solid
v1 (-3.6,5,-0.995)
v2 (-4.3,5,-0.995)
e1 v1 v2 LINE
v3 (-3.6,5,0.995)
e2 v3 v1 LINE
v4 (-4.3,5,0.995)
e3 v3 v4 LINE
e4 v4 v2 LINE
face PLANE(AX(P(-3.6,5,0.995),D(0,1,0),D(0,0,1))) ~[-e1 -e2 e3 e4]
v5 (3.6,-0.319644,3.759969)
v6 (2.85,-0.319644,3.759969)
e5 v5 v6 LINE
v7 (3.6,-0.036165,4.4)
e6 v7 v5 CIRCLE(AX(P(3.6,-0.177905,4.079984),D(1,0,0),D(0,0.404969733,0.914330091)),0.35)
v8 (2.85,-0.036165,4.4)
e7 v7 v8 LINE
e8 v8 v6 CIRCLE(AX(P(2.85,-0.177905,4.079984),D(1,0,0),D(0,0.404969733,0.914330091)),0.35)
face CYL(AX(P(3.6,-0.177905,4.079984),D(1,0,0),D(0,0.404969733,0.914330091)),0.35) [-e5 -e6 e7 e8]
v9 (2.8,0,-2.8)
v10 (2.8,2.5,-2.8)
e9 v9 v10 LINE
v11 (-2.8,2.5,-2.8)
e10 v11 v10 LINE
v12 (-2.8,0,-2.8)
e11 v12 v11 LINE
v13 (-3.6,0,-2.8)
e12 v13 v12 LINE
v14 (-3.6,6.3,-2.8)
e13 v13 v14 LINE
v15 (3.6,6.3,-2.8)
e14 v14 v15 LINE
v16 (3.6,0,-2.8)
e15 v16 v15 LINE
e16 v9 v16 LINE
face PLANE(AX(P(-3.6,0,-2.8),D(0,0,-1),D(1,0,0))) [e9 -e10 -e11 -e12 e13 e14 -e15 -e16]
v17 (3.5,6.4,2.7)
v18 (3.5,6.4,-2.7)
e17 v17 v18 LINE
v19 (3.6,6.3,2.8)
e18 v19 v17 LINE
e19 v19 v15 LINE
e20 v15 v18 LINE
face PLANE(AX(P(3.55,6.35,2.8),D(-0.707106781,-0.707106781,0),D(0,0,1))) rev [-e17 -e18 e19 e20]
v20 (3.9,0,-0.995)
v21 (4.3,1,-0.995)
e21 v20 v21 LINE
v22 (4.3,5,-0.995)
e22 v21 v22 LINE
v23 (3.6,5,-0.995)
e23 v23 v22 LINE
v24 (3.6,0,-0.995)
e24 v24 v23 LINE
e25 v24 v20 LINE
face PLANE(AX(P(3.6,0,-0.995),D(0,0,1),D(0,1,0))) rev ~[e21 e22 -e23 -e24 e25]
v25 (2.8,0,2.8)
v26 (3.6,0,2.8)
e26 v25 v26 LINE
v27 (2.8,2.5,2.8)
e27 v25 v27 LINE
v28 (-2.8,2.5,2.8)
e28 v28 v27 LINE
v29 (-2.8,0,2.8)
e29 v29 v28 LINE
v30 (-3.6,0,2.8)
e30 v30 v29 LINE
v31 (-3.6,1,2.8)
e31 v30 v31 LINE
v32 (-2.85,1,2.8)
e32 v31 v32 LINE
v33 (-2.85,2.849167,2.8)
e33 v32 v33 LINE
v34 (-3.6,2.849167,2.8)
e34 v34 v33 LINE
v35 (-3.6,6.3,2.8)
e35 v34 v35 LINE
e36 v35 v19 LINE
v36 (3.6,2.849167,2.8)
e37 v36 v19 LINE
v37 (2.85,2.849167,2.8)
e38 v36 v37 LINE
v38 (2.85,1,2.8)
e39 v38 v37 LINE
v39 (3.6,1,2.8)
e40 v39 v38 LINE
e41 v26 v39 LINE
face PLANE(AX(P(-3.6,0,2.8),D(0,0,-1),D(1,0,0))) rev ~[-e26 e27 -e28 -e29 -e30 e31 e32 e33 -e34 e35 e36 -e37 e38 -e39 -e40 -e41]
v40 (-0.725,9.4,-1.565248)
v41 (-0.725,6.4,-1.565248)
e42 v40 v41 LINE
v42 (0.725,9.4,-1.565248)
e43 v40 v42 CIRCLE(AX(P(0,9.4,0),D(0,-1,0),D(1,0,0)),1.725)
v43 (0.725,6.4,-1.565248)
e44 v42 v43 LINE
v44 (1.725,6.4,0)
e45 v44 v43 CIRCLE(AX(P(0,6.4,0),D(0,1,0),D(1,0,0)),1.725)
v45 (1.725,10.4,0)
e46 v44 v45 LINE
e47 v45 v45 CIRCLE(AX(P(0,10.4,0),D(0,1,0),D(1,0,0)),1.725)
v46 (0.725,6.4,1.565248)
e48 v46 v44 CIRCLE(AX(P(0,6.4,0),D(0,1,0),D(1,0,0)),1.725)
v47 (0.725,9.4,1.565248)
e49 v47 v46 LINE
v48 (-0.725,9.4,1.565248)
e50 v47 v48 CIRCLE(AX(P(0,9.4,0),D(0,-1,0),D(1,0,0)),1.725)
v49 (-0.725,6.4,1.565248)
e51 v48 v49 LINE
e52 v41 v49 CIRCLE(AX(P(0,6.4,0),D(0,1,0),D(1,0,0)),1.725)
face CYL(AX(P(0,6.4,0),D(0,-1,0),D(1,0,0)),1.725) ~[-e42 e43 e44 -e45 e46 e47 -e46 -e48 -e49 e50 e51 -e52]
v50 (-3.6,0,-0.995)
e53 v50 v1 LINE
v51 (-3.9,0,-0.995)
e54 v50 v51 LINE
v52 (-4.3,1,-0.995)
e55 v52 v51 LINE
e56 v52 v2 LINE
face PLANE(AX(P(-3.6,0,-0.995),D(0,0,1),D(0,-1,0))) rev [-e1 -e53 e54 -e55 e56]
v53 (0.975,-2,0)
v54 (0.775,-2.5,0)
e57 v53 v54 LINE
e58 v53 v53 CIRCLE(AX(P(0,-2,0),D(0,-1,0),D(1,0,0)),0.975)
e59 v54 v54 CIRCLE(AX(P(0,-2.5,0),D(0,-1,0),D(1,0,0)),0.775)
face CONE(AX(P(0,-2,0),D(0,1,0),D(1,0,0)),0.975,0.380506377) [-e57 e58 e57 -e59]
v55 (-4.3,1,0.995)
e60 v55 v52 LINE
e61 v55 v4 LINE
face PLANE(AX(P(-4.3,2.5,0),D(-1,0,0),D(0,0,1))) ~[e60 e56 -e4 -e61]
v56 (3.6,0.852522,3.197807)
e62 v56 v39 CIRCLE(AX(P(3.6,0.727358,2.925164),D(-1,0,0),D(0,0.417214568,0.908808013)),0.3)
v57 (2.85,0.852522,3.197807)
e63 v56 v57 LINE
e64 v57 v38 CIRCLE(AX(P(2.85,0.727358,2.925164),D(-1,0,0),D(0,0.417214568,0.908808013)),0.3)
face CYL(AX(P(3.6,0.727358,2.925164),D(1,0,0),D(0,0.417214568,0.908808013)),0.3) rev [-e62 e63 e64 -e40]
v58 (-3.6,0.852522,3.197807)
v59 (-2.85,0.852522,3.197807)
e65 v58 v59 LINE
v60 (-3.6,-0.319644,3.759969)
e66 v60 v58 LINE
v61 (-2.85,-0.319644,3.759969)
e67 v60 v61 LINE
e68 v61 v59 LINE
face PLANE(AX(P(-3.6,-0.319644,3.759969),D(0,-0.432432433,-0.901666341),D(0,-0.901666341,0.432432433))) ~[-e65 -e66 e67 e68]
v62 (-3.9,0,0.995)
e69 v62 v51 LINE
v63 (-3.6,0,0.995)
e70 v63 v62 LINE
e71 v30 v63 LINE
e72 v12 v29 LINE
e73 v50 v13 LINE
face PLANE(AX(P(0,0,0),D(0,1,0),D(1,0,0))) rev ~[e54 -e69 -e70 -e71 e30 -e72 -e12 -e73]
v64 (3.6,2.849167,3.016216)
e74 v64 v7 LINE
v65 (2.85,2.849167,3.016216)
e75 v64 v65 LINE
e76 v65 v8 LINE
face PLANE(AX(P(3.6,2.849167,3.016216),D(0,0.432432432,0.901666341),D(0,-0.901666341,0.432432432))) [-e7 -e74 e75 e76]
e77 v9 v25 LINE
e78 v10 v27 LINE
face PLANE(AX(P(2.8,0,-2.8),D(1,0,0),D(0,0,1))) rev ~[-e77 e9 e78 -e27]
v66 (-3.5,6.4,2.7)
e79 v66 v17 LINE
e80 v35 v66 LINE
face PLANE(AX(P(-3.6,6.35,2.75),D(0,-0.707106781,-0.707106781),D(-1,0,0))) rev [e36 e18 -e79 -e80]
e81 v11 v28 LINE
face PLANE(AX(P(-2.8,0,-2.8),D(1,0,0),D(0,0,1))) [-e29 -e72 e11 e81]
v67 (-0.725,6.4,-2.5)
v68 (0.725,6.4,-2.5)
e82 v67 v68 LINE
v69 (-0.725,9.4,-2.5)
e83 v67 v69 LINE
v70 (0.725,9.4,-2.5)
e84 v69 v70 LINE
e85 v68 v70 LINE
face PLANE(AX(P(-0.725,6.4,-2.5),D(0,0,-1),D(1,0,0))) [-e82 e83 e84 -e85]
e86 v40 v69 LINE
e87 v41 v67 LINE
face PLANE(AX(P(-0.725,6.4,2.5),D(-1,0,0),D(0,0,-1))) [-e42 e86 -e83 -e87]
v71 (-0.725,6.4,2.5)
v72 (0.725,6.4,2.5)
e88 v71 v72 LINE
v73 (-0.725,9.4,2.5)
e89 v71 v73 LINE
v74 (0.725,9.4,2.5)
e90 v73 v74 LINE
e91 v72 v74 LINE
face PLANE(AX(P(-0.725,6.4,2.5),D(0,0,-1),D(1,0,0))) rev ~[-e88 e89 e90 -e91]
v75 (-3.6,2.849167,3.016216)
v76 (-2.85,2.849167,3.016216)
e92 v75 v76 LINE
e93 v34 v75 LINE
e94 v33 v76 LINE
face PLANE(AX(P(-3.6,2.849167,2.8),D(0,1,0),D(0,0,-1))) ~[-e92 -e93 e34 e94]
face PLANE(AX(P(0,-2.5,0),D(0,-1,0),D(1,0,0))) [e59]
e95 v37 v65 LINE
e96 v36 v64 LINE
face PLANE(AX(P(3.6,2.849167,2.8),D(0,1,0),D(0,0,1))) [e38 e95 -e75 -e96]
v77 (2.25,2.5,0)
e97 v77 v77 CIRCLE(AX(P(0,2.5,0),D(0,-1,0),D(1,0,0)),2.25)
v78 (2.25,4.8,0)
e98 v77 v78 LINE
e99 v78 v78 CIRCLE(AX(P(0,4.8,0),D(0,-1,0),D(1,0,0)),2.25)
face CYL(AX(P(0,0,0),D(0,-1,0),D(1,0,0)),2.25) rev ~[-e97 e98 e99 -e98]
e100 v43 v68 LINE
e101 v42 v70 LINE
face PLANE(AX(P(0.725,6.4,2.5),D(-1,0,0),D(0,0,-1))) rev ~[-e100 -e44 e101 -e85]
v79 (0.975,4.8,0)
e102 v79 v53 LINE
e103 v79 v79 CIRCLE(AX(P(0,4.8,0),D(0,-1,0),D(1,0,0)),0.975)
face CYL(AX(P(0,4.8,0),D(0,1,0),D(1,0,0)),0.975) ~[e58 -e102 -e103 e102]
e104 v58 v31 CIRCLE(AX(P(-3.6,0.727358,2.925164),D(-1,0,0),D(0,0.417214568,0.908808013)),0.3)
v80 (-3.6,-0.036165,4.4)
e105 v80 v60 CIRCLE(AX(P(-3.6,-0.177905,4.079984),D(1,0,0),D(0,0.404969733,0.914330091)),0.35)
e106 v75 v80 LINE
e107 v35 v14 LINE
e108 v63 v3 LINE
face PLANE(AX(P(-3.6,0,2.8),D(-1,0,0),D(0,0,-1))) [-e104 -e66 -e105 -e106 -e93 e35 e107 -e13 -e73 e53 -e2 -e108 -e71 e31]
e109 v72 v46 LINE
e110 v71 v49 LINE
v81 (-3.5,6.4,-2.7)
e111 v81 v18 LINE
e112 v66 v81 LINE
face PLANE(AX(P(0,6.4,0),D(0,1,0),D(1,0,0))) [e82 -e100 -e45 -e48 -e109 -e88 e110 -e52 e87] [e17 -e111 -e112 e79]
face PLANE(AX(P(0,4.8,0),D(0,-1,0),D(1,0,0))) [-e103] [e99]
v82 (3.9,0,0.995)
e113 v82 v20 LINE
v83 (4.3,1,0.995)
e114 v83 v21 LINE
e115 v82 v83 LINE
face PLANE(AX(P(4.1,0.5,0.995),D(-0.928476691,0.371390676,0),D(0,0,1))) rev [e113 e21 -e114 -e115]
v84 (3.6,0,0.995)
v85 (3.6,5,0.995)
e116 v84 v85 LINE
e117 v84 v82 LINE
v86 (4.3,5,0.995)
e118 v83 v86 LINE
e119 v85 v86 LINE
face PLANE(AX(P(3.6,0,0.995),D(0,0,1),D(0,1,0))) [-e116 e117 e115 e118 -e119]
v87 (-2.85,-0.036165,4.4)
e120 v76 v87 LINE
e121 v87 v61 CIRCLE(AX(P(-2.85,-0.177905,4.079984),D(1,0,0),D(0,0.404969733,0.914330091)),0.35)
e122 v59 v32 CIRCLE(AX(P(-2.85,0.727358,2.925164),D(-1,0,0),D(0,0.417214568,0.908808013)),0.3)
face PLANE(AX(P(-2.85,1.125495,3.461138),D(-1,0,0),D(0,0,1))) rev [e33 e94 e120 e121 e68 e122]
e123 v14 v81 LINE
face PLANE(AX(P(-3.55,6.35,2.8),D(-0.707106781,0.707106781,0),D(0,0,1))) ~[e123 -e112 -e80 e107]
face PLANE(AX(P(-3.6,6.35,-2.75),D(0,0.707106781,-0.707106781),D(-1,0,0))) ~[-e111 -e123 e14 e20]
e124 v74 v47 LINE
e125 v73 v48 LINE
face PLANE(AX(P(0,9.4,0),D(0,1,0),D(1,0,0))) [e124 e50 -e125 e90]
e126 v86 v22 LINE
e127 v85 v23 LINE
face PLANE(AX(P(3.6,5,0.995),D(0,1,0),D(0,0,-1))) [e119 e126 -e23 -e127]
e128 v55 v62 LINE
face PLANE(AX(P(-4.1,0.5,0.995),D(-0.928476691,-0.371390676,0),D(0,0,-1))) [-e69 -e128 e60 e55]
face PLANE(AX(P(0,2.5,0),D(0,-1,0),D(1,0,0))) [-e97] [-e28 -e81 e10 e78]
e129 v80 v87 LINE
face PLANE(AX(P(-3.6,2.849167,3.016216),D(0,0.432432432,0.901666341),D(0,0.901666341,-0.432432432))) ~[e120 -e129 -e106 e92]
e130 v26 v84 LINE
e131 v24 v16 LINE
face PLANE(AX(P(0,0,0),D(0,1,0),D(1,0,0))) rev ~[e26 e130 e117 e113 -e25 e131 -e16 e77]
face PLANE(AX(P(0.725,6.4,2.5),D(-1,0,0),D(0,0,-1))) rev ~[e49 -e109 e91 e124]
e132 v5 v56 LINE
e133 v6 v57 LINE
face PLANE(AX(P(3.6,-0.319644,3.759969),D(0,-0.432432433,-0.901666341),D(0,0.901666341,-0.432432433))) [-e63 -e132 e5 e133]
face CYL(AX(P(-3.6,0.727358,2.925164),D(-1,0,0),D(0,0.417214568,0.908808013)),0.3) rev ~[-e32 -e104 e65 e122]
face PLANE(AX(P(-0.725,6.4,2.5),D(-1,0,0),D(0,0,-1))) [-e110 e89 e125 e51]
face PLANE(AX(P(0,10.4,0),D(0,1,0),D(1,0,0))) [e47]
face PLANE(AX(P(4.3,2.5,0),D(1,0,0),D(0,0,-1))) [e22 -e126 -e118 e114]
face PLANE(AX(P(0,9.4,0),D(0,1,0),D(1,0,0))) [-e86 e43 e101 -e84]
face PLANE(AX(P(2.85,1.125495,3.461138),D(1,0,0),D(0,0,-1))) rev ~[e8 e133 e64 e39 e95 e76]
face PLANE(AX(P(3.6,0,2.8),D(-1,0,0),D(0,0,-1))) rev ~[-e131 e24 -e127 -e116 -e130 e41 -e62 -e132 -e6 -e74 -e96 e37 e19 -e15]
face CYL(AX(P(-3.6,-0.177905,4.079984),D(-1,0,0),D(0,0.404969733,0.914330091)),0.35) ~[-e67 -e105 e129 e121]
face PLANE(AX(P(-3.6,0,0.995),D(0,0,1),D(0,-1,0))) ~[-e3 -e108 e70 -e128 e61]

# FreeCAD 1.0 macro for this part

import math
import FreeCAD as App
import Part
import Sketcher
from FreeCAD import Vector


def edges_at(feature, points):
    """Names of the edges that pass closest to the given points."""
    edges = feature.Shape.Edges
    near = lambda p: min(range(len(edges)), key=lambda i: edges[i].distToShape(Part.Vertex(*p))[0])
    return sorted({f"Edge{near(p) + 1}" for p in points})

doc = App.newDocument("Part")
body = doc.addObject("PartDesign::Body", "Body")

# Sketch on XZ plane
sketch1 = body.newObject("Sketcher::SketchObject", "Sketch")
sketch1.AttachmentSupport = (doc.getObject("XZ_Plane"), [""])
sketch1.MapMode = "FlatFace"
sketch1.addGeometry(Part.LineSegment(Vector(-4, -3, 0), Vector(-4, 3, 0)), False)
sketch1.addGeometry(Part.LineSegment(Vector(-4, 3, 0), Vector(4, 3, 0)), False)
sketch1.addGeometry(Part.LineSegment(Vector(4, 3, 0), Vector(4, -3, 0)), False)
sketch1.addGeometry(Part.LineSegment(Vector(4, -3, 0), Vector(-4, -3, 0)), False)
sketch1.addConstraint(Sketcher.Constraint("Coincident", 0, 2, 1, 1))
sketch1.addConstraint(Sketcher.Constraint("Coincident", 1, 2, 2, 1))
sketch1.addConstraint(Sketcher.Constraint("Coincident", 2, 2, 3, 1))
sketch1.addConstraint(Sketcher.Constraint("Coincident", 3, 2, 0, 1))
sketch1.addConstraint(Sketcher.Constraint("Vertical", 0))
sketch1.addConstraint(Sketcher.Constraint("Horizontal", 1))
sketch1.addConstraint(Sketcher.Constraint("Vertical", 2))
sketch1.addConstraint(Sketcher.Constraint("Horizontal", 3))
sketch1.addConstraint(Sketcher.Constraint("Symmetric", 0, 2, 2, 2, -1, 1))
sketch1.addConstraint(Sketcher.Constraint("DistanceX", 1, 1, 1, 2, 7.2))
sketch1.addConstraint(Sketcher.Constraint("DistanceY", 0, 1, 0, 2, 5.6))
pad1 = body.newObject("PartDesign::Pad", "Pad")
pad1.Profile = sketch1
pad1.Length = 6.4
pad1.Reversed = True
doc.recompute()

chamfer = body.newObject("PartDesign::Chamfer", "Chamfer")
chamfer.Base = (pad1, edges_at(pad1, [
    (-3.6, 6.4, 0),
    (0, 6.4, 2.8),
    (3.6, 6.4, 0),
    (0, 6.4, -2.8),
]))
chamfer.Size = 0.1

# Sketch on XZ plane
sketch2 = body.newObject("Sketcher::SketchObject", "Sketch001")
sketch2.AttachmentSupport = (doc.getObject("XZ_Plane"), [""])
sketch2.MapMode = "FlatFace"
sketch2.AttachmentOffset = App.Placement(Vector(0, 0, -6.4), App.Rotation())
sketch2.addGeometry(Part.Circle(Vector(0, 0, 0), Vector(0, 0, 1), 1.7), False)
sketch2.addConstraint(Sketcher.Constraint("Coincident", 0, 3, -1, 1))
sketch2.addConstraint(Sketcher.Constraint("Diameter", 0, 3.45))
pad2 = body.newObject("PartDesign::Pad", "Pad001")
pad2.Profile = sketch2
pad2.Length = 4
pad2.Reversed = True

# Sketch on XZ plane
sketch3 = body.newObject("Sketcher::SketchObject", "Sketch002")
sketch3.AttachmentSupport = (doc.getObject("XZ_Plane"), [""])
sketch3.MapMode = "FlatFace"
sketch3.AttachmentOffset = App.Placement(Vector(0, 0, -6.4), App.Rotation())
sketch3.addGeometry(Part.LineSegment(Vector(-0.7, -2.5, 0), Vector(-0.7, 2.5, 0)), False)
sketch3.addGeometry(Part.LineSegment(Vector(-0.7, 2.5, 0), Vector(0.7, 2.5, 0)), False)
sketch3.addGeometry(Part.LineSegment(Vector(0.7, 2.5, 0), Vector(0.7, -2.5, 0)), False)
sketch3.addGeometry(Part.LineSegment(Vector(0.7, -2.5, 0), Vector(-0.7, -2.5, 0)), False)
sketch3.addConstraint(Sketcher.Constraint("Coincident", 0, 2, 1, 1))
sketch3.addConstraint(Sketcher.Constraint("Coincident", 1, 2, 2, 1))
sketch3.addConstraint(Sketcher.Constraint("Coincident", 2, 2, 3, 1))
sketch3.addConstraint(Sketcher.Constraint("Coincident", 3, 2, 0, 1))
sketch3.addConstraint(Sketcher.Constraint("Vertical", 0))
sketch3.addConstraint(Sketcher.Constraint("Horizontal", 1))
sketch3.addConstraint(Sketcher.Constraint("Vertical", 2))
sketch3.addConstraint(Sketcher.Constraint("Horizontal", 3))
sketch3.addConstraint(Sketcher.Constraint("Symmetric", 0, 2, 2, 2, -1, 1))
sketch3.addConstraint(Sketcher.Constraint("DistanceY", 0, 1, 0, 2, 5.0))
sketch3.addConstraint(Sketcher.Constraint("DistanceX", 1, 1, 1, 2, 1.45))
pad3 = body.newObject("PartDesign::Pad", "Pad002")
pad3.Profile = sketch3
pad3.Length = 3
pad3.Reversed = True

# Sketch on XZ plane
sketch4 = body.newObject("Sketcher::SketchObject", "Sketch003")
sketch4.AttachmentSupport = (doc.getObject("XZ_Plane"), [""])
sketch4.MapMode = "FlatFace"
sketch4.addGeometry(Part.Circle(Vector(0, 0, 0), Vector(0, 0, 1), 2.2), False)
sketch4.addConstraint(Sketcher.Constraint("Coincident", 0, 3, -1, 1))
sketch4.addConstraint(Sketcher.Constraint("Diameter", 0, 4.5))
pocket1 = body.newObject("PartDesign::Pocket", "Pocket")
pocket1.Profile = sketch4
pocket1.Length = 4.8

# Sketch on XZ plane
sketch5 = body.newObject("Sketcher::SketchObject", "Sketch004")
sketch5.AttachmentSupport = (doc.getObject("XZ_Plane"), [""])
sketch5.MapMode = "FlatFace"
sketch5.addGeometry(Part.LineSegment(Vector(-3, 3, 0), Vector(-3, -3, 0)), False)
sketch5.addGeometry(Part.LineSegment(Vector(-3, -3, 0), Vector(3, -3, 0)), False)
sketch5.addGeometry(Part.LineSegment(Vector(3, -3, 0), Vector(3, 3, 0)), False)
sketch5.addGeometry(Part.LineSegment(Vector(3, 3, 0), Vector(-3, 3, 0)), False)
sketch5.addConstraint(Sketcher.Constraint("Coincident", 0, 2, 1, 1))
sketch5.addConstraint(Sketcher.Constraint("Coincident", 1, 2, 2, 1))
sketch5.addConstraint(Sketcher.Constraint("Coincident", 2, 2, 3, 1))
sketch5.addConstraint(Sketcher.Constraint("Coincident", 3, 2, 0, 1))
sketch5.addConstraint(Sketcher.Constraint("Vertical", 0))
sketch5.addConstraint(Sketcher.Constraint("Horizontal", 1))
sketch5.addConstraint(Sketcher.Constraint("Vertical", 2))
sketch5.addConstraint(Sketcher.Constraint("Horizontal", 3))
sketch5.addConstraint(Sketcher.Constraint("Symmetric", 0, 2, 2, 2, -1, 1))
sketch5.addConstraint(Sketcher.Constraint("Equal", 3, 0))
sketch5.addConstraint(Sketcher.Constraint("DistanceX", 1, 1, 1, 2, 5.6))
pocket2 = body.newObject("PartDesign::Pocket", "Pocket001")
pocket2.Profile = sketch5
pocket2.Length = 2.5

# Sketch on XZ plane
sketch6 = body.newObject("Sketcher::SketchObject", "Sketch005")
sketch6.AttachmentSupport = (doc.getObject("XZ_Plane"), [""])
sketch6.MapMode = "FlatFace"
sketch6.AttachmentOffset = App.Placement(Vector(0, 0, -4.8), App.Rotation())
sketch6.addGeometry(Part.Circle(Vector(0, 0, 0), Vector(0, 0, 1), 1), False)
sketch6.addConstraint(Sketcher.Constraint("Coincident", 0, 3, -1, 1))
sketch6.addConstraint(Sketcher.Constraint("Diameter", 0, 1.95))
pad4 = body.newObject("PartDesign::Pad", "Pad003")
pad4.Profile = sketch6
pad4.Length = 7.3
doc.recompute()

chamfer2 = body.newObject("PartDesign::Chamfer", "Chamfer001")
chamfer2.Base = (pad4, edges_at(pad4, [(-0.975, -2.5, 0)]))
chamfer2.ChamferType = "Two distances"
chamfer2.Size = 0.5
chamfer2.Size2 = 0.2

# Sketch on YZ plane
sketch7 = body.newObject("Sketcher::SketchObject", "Sketch006")
sketch7.AttachmentSupport = (doc.getObject("YZ_Plane"), [""])
sketch7.MapMode = "FlatFace"
sketch7.AttachmentOffset = App.Placement(Vector(0, 0, 3.6), App.Rotation())
sketch7.addGeometry(Part.LineSegment(Vector(5, 1, 0), Vector(0, 1, 0)), False)
sketch7.addGeometry(Part.LineSegment(Vector(0, 1, 0), Vector(0, -1, 0)), False)
sketch7.addGeometry(Part.LineSegment(Vector(0, -1, 0), Vector(5, -1, 0)), False)
sketch7.addGeometry(Part.LineSegment(Vector(5, -1, 0), Vector(5, 1, 0)), False)
sketch7.addConstraint(Sketcher.Constraint("Coincident", 0, 2, 1, 1))
sketch7.addConstraint(Sketcher.Constraint("Coincident", 1, 2, 2, 1))
sketch7.addConstraint(Sketcher.Constraint("Coincident", 2, 2, 3, 1))
sketch7.addConstraint(Sketcher.Constraint("Coincident", 3, 2, 0, 1))
sketch7.addConstraint(Sketcher.Constraint("Horizontal", 0))
sketch7.addConstraint(Sketcher.Constraint("Vertical", 1))
sketch7.addConstraint(Sketcher.Constraint("Horizontal", 2))
sketch7.addConstraint(Sketcher.Constraint("Vertical", 3))
sketch7.addConstraint(Sketcher.Constraint("Symmetric", 0, 2, 1, 2, -1, 1))
sketch7.addConstraint(Sketcher.Constraint("DistanceX", 0, 2, 0, 1, 5.0))
sketch7.addConstraint(Sketcher.Constraint("DistanceY", 1, 2, 1, 1, 1.99))
pad5 = body.newObject("PartDesign::Pad", "Pad004")
pad5.Profile = sketch7
pad5.Length = 0.7
doc.recompute()

mirrored = body.newObject("PartDesign::Mirrored", "Mirrored")
mirrored.Originals = [pad5]
mirrored.MirrorPlane = (doc.getObject("YZ_Plane"), [""])
body.Tip = mirrored
doc.recompute()

chamfer3 = body.newObject("PartDesign::Chamfer", "Chamfer002")
chamfer3.Base = (mirrored, edges_at(mirrored, [(4.3, 0, 0)]))
chamfer3.ChamferType = "Two distances"
chamfer3.Size = 0.4
chamfer3.Size2 = 1
doc.recompute()

chamfer4 = body.newObject("PartDesign::Chamfer", "Chamfer003")
chamfer4.Base = (chamfer3, edges_at(chamfer3, [(-4.3, 0, 0)]))
chamfer4.ChamferType = "Two distances"
chamfer4.Size = 1
chamfer4.Size2 = 0.4
chamfer4.FlipDirection = True

# Sketch on YZ plane
sketch8 = body.newObject("Sketcher::SketchObject", "Sketch007")
sketch8.AttachmentSupport = (doc.getObject("YZ_Plane"), [""])
sketch8.MapMode = "FlatFace"
sketch8.AttachmentOffset = App.Placement(Vector(0, 0, 3.6), App.Rotation())
sketch8.addGeometry(Part.LineSegment(Vector(2.85, 3.02, 0), Vector(-0.04, 4.4, 0)), False)
sketch8.addGeometry(Part.ArcOfCircle(Part.Circle(Vector(-0.18, 4.08, 0), Vector(0, 0, 1), 0.35), math.radians(66), math.radians(246)), False)
sketch8.addGeometry(Part.LineSegment(Vector(-0.32, 3.76, 0), Vector(0.85, 3.2, 0)), False)
sketch8.addGeometry(Part.ArcOfCircle(Part.Circle(Vector(0.73, 2.93, 0), Vector(0, 0, 1), 0.3), math.radians(-25), math.radians(65)), False)
sketch8.addGeometry(Part.LineSegment(Vector(1, 2.8, 0), Vector(2.85, 2.8, 0)), False)
sketch8.addGeometry(Part.LineSegment(Vector(2.85, 2.8, 0), Vector(2.85, 3.02, 0)), False)
sketch8.addConstraint(Sketcher.Constraint("Coincident", 0, 2, 1, 1))
sketch8.addConstraint(Sketcher.Constraint("Coincident", 1, 2, 2, 1))
sketch8.addConstraint(Sketcher.Constraint("Coincident", 2, 2, 3, 2))
sketch8.addConstraint(Sketcher.Constraint("Coincident", 3, 1, 4, 1))
sketch8.addConstraint(Sketcher.Constraint("Coincident", 4, 2, 5, 1))
sketch8.addConstraint(Sketcher.Constraint("Coincident", 5, 2, 0, 1))
sketch8.addConstraint(Sketcher.Constraint("Horizontal", 4))
sketch8.addConstraint(Sketcher.Constraint("Vertical", 5))
sketch8.addConstraint(Sketcher.Constraint("Parallel", 0, 2))
sketch8.addConstraint(Sketcher.Constraint("Radius", 3, 0.3))
sketch8.addConstraint(Sketcher.Constraint("Radius", 1, 0.35))
sketch8.addConstraint(Sketcher.Constraint("DistanceX", -1, 1, 3, 1, 1.0))
sketch8.addConstraint(Sketcher.Constraint("Distance", 0, 3.2))
sketch8.addConstraint(Sketcher.Constraint("Distance", 2, 1.3))
sketch8.addConstraint(Sketcher.Constraint("DistanceY", -1, 1, 0, 2, 4.4))
sketch8.addConstraint(Sketcher.Constraint("DistanceY", -1, 1, 3, 1, 2.8))
sketch8.addConstraint(Sketcher.Constraint("DistanceX", 1, 2, 3, 3, 1.047002))
sketch8.addConstraint(Sketcher.Constraint("DistanceX", 4, 1, 4, 2, 1.849167))
sketch8.addConstraint(Sketcher.Constraint("DistanceY", 5, 1, 5, 2, 0.216216))
sketch8.addConstraint(Sketcher.Constraint("DistanceY", 3, 3, 1, 3, 1.15482))
pad6 = body.newObject("PartDesign::Pad", "Pad005")
pad6.Profile = sketch8
pad6.Length = 0.75
pad6.Reversed = True
doc.recompute()

mirrored2 = body.newObject("PartDesign::Mirrored", "Mirrored001")
mirrored2.Originals = [pad6]
mirrored2.MirrorPlane = (doc.getObject("YZ_Plane"), [""])
body.Tip = mirrored2

doc.recompute()
